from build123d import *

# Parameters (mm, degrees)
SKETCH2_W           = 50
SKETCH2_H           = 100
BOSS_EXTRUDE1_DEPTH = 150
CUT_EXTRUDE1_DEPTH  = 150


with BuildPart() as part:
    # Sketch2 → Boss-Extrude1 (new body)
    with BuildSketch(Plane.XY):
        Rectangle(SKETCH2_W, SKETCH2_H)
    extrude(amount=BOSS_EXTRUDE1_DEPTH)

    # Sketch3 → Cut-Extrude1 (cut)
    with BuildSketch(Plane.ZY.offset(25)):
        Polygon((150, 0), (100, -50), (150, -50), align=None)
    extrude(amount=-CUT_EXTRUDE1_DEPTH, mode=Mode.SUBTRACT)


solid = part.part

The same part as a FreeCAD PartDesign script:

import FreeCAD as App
import Part
import Sketcher
Q = App.Units.Quantity


def add_polygon(sketch, points):
    """Adds a closed chain of lines whose ends are joined by coincident constraints."""
    first, n = sketch.GeometryCount, len(points)
    for a, b in zip(points, points[1:] + points[:1]):
        sketch.addGeometry(Part.LineSegment(App.Vector(*a, 0), App.Vector(*b, 0)), False)
    for i in range(n):
        sketch.addConstraint(Sketcher.Constraint("Coincident", first + i, 2, first + (i + 1) % n, 1))

doc = App.newDocument("Part")
body = doc.addObject("PartDesign::Body", "Body")

# Sketch on XY plane
sketch1 = body.newObject("Sketcher::SketchObject", "Sketch")
sketch1.AttachmentSupport = (doc.getObject("XY_Plane"), [""])
sketch1.MapMode = "FlatFace"
add_polygon(sketch1, [(-25, 50), (-25, -50), (25, -50), (25, 50)])  # lines 0-3
sketch1.addConstraint(Sketcher.Constraint("Vertical", 0))
sketch1.addConstraint(Sketcher.Constraint("Horizontal", 1))
sketch1.addConstraint(Sketcher.Constraint("Vertical", 2))
sketch1.addConstraint(Sketcher.Constraint("Horizontal", 3))
sketch1.addConstraint(Sketcher.Constraint("Symmetric", 0, 2, 2, 2, -1, 1))
sketch1.addConstraint(Sketcher.Constraint("DistanceX", 1, 1, 1, 2, Q("50 mm")))
sketch1.addConstraint(Sketcher.Constraint("DistanceY", 0, 2, 0, 1, Q("100 mm")))
pad1 = body.newObject("PartDesign::Pad", "Pad")
pad1.Profile = sketch1
pad1.Length = 150

# Sketch on YZ plane
sketch2 = body.newObject("Sketcher::SketchObject", "Sketch001")
sketch2.AttachmentSupport = (doc.getObject("YZ_Plane"), [""])
sketch2.MapMode = "FlatFace"
sketch2.AttachmentOffset = App.Placement(App.Vector(0, 0, -25), App.Rotation())
add_polygon(sketch2, [(0, 150), (-50, 100), (-50, 150)])  # lines 0-2
sketch2.addConstraint(Sketcher.Constraint("Vertical", 1))
sketch2.addConstraint(Sketcher.Constraint("Horizontal", 2))
sketch2.addConstraint(Sketcher.Constraint("PointOnObject", 2, 2, -2))
sketch2.addConstraint(Sketcher.Constraint("Equal", 2, 1))
sketch2.addConstraint(Sketcher.Constraint("DistanceX", 2, 1, 2, 2, Q("50 mm")))
sketch2.addConstraint(Sketcher.Constraint("DistanceY", -1, 1, 0, 2, Q("100 mm")))
pocket1 = body.newObject("PartDesign::Pocket", "Pocket")
pocket1.Profile = sketch2
pocket1.Length = 150
pocket1.Reversed = True

doc.recompute()
